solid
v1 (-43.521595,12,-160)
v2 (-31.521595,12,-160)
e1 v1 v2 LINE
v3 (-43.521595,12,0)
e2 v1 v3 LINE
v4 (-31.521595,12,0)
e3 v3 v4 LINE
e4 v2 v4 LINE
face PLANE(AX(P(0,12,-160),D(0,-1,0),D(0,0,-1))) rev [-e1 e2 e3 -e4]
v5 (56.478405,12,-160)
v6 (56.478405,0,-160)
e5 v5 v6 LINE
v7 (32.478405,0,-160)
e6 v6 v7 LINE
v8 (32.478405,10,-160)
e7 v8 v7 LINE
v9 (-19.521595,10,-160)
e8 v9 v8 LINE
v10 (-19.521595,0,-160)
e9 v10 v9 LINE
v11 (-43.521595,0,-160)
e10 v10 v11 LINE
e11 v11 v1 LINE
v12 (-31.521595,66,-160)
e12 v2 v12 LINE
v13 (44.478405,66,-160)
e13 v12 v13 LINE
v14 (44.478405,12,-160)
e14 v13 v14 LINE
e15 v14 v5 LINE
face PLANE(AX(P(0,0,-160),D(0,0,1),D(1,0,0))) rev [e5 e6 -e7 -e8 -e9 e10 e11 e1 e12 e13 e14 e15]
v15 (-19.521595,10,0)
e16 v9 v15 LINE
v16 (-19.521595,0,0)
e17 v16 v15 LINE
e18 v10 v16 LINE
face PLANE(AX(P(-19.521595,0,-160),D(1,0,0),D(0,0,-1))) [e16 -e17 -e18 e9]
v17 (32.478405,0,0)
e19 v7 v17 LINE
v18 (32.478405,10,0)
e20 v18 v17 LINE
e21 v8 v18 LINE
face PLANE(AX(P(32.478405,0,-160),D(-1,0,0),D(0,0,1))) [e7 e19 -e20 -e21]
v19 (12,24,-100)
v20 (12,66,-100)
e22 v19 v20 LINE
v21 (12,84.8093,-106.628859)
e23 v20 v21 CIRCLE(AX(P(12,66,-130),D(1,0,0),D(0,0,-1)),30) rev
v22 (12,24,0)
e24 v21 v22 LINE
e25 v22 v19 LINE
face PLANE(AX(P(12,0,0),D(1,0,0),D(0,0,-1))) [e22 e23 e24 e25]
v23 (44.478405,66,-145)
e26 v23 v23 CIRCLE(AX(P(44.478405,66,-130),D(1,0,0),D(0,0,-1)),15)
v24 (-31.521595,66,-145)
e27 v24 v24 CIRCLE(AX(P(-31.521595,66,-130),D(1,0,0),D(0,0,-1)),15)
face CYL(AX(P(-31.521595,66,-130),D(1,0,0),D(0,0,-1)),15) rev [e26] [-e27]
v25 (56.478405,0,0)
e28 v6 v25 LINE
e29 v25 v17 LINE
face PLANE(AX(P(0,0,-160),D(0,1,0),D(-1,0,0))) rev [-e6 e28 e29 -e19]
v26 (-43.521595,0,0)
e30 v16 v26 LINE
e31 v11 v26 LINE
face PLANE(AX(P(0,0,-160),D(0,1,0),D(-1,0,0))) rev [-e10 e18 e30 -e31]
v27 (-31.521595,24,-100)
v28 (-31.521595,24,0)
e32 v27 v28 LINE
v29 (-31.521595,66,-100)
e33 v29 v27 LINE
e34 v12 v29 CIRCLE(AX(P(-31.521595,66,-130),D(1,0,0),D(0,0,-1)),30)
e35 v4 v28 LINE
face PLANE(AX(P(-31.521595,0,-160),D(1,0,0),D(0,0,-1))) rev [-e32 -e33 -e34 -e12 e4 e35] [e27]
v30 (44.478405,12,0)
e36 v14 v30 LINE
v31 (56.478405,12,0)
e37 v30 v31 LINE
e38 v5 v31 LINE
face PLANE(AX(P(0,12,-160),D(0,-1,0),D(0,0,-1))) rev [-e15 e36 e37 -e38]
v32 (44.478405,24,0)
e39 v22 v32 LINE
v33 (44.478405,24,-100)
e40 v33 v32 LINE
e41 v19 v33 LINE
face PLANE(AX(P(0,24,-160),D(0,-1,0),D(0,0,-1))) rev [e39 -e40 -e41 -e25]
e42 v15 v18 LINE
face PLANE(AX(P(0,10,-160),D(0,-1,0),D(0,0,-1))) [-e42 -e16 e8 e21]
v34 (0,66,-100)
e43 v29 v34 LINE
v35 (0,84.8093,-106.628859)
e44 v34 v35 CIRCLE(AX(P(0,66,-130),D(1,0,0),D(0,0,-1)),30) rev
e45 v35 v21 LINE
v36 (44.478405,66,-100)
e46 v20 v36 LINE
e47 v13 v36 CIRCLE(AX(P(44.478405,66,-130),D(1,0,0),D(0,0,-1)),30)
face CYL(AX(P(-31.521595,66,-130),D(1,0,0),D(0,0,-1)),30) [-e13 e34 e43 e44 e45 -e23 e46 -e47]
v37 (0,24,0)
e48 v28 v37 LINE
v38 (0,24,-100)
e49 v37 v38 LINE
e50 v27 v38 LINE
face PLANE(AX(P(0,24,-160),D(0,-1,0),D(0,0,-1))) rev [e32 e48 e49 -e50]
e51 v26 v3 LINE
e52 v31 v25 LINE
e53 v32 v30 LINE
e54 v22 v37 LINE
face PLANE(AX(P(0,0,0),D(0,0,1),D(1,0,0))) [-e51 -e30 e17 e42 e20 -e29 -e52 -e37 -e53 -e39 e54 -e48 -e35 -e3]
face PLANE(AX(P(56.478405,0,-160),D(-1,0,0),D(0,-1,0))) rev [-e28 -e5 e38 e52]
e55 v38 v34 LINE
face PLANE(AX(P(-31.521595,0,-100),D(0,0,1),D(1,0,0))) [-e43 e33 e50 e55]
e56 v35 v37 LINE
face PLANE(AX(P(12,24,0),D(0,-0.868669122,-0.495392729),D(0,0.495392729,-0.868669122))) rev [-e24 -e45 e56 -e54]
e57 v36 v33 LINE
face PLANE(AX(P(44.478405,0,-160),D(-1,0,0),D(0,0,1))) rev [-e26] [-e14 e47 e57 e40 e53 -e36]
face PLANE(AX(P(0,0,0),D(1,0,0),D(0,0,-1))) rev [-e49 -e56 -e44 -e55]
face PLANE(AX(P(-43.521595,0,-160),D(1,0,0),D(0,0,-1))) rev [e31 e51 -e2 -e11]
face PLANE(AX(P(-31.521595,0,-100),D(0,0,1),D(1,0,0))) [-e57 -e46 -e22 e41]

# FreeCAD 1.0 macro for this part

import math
import FreeCAD as App
import Part
import Sketcher
from FreeCAD import Vector


def add_polygon(sketch, points):
    """Adds a closed chain of lines whose ends are joined by coincident constraints."""
    first, n = sketch.GeometryCount, len(points)
    for a, b in zip(points, points[1:] + points[:1]):
        sketch.addGeometry(Part.LineSegment(App.Vector(*a, 0), App.Vector(*b, 0)), False)
    for i in range(n):
        sketch.addConstraint(Sketcher.Constraint("Coincident", first + i, 2, first + (i + 1) % n, 1))

doc = App.newDocument("Part")
body = doc.addObject("PartDesign::Body", "Body")

# Sketch on XY plane
sketch1 = body.newObject("Sketcher::SketchObject", "Sketch")
sketch1.AttachmentSupport = (doc.getObject("XY_Plane"), [""])
sketch1.MapMode = "FlatFace"
add_polygon(sketch1, [(-44, 12), (-44, 0), (-20, 0), (-20, 10), (32, 10), (32, 0), (56, 0), (56, 12), (44, 12), (44, 24), (-32, 24), (-32, 12)])  # lines 0-11
sketch1.addConstraint(Sketcher.Constraint("Vertical", 0))
sketch1.addConstraint(Sketcher.Constraint("Horizontal", 1))
sketch1.addConstraint(Sketcher.Constraint("Vertical", 2))
sketch1.addConstraint(Sketcher.Constraint("Horizontal", 3))
sketch1.addConstraint(Sketcher.Constraint("Vertical", 4))
sketch1.addConstraint(Sketcher.Constraint("Horizontal", 5))
sketch1.addConstraint(Sketcher.Constraint("Vertical", 6))
sketch1.addConstraint(Sketcher.Constraint("Horizontal", 7))
sketch1.addConstraint(Sketcher.Constraint("Vertical", 8))
sketch1.addConstraint(Sketcher.Constraint("Horizontal", 9))
sketch1.addConstraint(Sketcher.Constraint("Vertical", 10))
sketch1.addConstraint(Sketcher.Constraint("Horizontal", 11))
sketch1.addConstraint(Sketcher.Constraint("PointOnObject", 0, 2, -1))
sketch1.addConstraint(Sketcher.Constraint("PointOnObject", 4, 2, -1))
sketch1.addConstraint(Sketcher.Constraint("Horizontal", 7, 2, 10, 2))
sketch1.addConstraint(Sketcher.Constraint("Equal", 1, 5))
sketch1.addConstraint(Sketcher.Constraint("Equal", 7, 11))
sketch1.addConstraint(Sketcher.Constraint("Equal", 11, 0))
sketch1.addConstraint(Sketcher.Constraint("Equal", 6, 8))
sketch1.addConstraint(Sketcher.Constraint("DistanceX", 1, 1, 1, 2, 24.0))
sketch1.addConstraint(Sketcher.Constraint("DistanceX", 3, 1, 3, 2, 52.0))
sketch1.addConstraint(Sketcher.Constraint("DistanceX", 7, 2, 7, 1, 12.0))
sketch1.addConstraint(Sketcher.Constraint("DistanceY", 2, 1, 2, 2, 10.0))
sketch1.addConstraint(Sketcher.Constraint("DistanceX", 0, 2, -1, 1, 43.521595))
pad1 = body.newObject("PartDesign::Pad", "Pad")
pad1.Profile = sketch1
pad1.Length = 160
pad1.Reversed = True

# Sketch on YZ plane
sketch2 = body.newObject("Sketcher::SketchObject", "Sketch001")
sketch2.AttachmentSupport = (doc.getObject("YZ_Plane"), [""])
sketch2.MapMode = "FlatFace"
sketch2.AttachmentOffset = App.Placement(Vector(0, 0, 44.478405), App.Rotation())
sketch2.addGeometry(Part.LineSegment(Vector(24, -100, 0), Vector(24, -160, 0)), False)
sketch2.addGeometry(Part.LineSegment(Vector(24, -160, 0), Vector(66, -160, 0)), False)
sketch2.addGeometry(Part.ArcOfCircle(Part.Circle(Vector(66, -130, 0), Vector(0, 0, 1), 30), math.radians(-90), math.radians(90)), False)
sketch2.addGeometry(Part.LineSegment(Vector(66, -100, 0), Vector(24, -100, 0)), False)
sketch2.addGeometry(Part.Circle(Vector(66, -130, 0), Vector(0, 0, 1), 15), False)
sketch2.addConstraint(Sketcher.Constraint("Coincident", 0, 2, 1, 1))
sketch2.addConstraint(Sketcher.Constraint("Tangent", 1, 2, 2, 1))
sketch2.addConstraint(Sketcher.Constraint("Tangent", 2, 2, 3, 1))
sketch2.addConstraint(Sketcher.Constraint("Coincident", 3, 2, 0, 1))
sketch2.addConstraint(Sketcher.Constraint("Vertical", 0))
sketch2.addConstraint(Sketcher.Constraint("Horizontal", 1))
sketch2.addConstraint(Sketcher.Constraint("Horizontal", 3))
sketch2.addConstraint(Sketcher.Constraint("Coincident", 4, 3, 2, 3))
sketch2.addConstraint(Sketcher.Constraint("Diameter", 4, 30.0))
sketch2.addConstraint(Sketcher.Constraint("Radius", 2, 30.0))
sketch2.addConstraint(Sketcher.Constraint("DistanceX", 1, 1, 1, 2, 42.0))
sketch2.addConstraint(Sketcher.Constraint("DistanceX", -1, 1, 2, 3, 66.0))
sketch2.addConstraint(Sketcher.Constraint("DistanceY", 2, 3, -1, 1, 130.0))
pad2 = body.newObject("PartDesign::Pad", "Pad001")
pad2.Profile = sketch2
pad2.Length = 76
pad2.Reversed = True

# Sketch on YZ plane
sketch3 = body.newObject("Sketcher::SketchObject", "Sketch002")
sketch3.AttachmentSupport = (doc.getObject("YZ_Plane"), [""])
sketch3.MapMode = "FlatFace"
add_polygon(sketch3, [(87, -110), (24, 0), (24, -110)])  # lines 0-2
sketch3.addConstraint(Sketcher.Constraint("Vertical", 1))
sketch3.addConstraint(Sketcher.Constraint("Horizontal", 2))
sketch3.addConstraint(Sketcher.Constraint("PointOnObject", 0, 2, -1))
sketch3.addConstraint(Sketcher.Constraint("DistanceX", -1, 1, 0, 2, 24.0))
sketch3.addConstraint(Sketcher.Constraint("DistanceY", 1, 2, 1, 1, 109.656121))
sketch3.addConstraint(Sketcher.Constraint("DistanceX", 2, 1, 2, 2, 62.535716))
pad3 = body.newObject("PartDesign::Pad", "Pad002")
pad3.Profile = sketch3
pad3.Length = 12

doc.recompute()
